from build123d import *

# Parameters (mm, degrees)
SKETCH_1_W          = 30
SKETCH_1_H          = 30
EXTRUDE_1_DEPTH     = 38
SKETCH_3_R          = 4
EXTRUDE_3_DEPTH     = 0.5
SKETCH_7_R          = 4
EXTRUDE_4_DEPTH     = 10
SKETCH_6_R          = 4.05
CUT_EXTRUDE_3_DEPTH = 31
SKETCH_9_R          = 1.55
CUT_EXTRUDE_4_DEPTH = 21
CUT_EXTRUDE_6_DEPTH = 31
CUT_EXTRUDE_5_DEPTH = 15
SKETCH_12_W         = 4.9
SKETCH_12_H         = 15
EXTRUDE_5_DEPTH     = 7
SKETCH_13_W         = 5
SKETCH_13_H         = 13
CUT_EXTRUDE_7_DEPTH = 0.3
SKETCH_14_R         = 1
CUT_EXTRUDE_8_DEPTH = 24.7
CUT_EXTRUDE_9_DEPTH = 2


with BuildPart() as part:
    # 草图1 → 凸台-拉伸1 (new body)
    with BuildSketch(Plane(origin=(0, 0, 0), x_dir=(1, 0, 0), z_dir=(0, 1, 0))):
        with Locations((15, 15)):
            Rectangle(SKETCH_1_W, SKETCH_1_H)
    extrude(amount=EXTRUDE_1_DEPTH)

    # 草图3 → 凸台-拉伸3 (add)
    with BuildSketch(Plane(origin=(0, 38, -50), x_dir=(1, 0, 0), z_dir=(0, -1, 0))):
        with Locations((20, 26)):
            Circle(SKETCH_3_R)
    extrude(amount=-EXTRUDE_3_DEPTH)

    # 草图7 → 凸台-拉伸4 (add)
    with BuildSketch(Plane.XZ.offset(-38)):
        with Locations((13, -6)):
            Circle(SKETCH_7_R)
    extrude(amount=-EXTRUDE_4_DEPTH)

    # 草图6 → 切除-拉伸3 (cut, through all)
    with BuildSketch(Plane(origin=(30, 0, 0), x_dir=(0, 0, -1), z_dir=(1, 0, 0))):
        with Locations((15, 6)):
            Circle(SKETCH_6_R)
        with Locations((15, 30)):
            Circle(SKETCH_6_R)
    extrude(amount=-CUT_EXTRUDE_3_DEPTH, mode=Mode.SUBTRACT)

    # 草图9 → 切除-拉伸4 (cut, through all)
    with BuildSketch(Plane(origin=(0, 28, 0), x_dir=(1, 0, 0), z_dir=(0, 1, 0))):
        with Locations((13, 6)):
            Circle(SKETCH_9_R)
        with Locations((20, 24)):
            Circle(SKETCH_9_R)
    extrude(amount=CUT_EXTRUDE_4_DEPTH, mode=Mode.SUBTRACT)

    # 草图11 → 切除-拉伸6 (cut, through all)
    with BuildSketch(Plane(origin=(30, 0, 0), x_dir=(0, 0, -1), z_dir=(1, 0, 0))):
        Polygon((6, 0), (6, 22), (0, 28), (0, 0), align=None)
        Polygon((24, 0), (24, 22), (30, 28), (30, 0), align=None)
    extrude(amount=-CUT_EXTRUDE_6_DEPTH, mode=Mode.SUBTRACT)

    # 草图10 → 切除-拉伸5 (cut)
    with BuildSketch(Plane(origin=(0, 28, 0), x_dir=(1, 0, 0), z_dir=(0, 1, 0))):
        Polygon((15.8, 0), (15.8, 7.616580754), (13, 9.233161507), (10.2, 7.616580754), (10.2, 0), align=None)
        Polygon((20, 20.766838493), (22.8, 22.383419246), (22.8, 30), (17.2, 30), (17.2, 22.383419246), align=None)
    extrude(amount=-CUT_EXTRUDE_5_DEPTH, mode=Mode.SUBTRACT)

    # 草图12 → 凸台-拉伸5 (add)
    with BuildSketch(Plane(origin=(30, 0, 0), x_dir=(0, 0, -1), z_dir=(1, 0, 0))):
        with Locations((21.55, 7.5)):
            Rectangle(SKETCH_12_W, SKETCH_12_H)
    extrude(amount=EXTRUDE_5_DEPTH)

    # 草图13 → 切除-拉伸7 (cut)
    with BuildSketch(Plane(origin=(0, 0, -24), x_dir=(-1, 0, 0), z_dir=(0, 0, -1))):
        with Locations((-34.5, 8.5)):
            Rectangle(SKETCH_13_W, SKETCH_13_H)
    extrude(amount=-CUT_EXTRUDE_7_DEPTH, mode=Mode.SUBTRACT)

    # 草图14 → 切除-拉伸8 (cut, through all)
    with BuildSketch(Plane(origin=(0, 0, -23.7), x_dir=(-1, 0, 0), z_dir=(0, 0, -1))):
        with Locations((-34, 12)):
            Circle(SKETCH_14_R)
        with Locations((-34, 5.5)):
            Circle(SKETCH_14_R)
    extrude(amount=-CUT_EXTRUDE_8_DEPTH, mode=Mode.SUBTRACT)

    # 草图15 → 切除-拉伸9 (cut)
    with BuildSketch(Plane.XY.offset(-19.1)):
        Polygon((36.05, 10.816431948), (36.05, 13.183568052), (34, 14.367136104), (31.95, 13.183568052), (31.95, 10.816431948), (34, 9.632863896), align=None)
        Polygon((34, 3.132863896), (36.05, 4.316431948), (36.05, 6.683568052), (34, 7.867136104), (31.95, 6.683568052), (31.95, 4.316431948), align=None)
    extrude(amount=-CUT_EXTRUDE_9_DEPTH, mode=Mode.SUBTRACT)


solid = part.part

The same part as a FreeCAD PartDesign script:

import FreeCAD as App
import Part
import Sketcher

V = App.Vector
Q = App.Units.Quantity


def add_polygon(sketch, points):
    """Adds a closed chain of lines whose ends are joined by coincident constraints."""
    first, n = sketch.GeometryCount, len(points)
    for a, b in zip(points, points[1:] + points[:1]):
        sketch.addGeometry(Part.LineSegment(App.Vector(*a, 0), App.Vector(*b, 0)), False)
    for i in range(n):
        sketch.addConstraint(Sketcher.Constraint("Coincident", first + i, 2, first + (i + 1) % n, 1))

doc = App.newDocument("Part")
body = doc.addObject("PartDesign::Body", "Body")

sketch1 = body.newObject("Sketcher::SketchObject", "Sketch")
sketch1.AttachmentSupport = (doc.getObject("XZ_Plane"), [""])
sketch1.MapMode = "FlatFace"
add_polygon(sketch1, [(0, -30), (0, 0), (30, 0), (30, -30)])
sketch1.addConstraint([
    Sketcher.Constraint("Vertical", 0),
    Sketcher.Constraint("Horizontal", 1),
    Sketcher.Constraint("Vertical", 2),
    Sketcher.Constraint("Horizontal", 3),
    Sketcher.Constraint("Coincident", 0, 2, -1, 1),
    Sketcher.Constraint("Equal", 3, 0),
    Sketcher.Constraint("DistanceX", 1, 1, 1, 2, Q("30 mm")),
])
pad1 = body.newObject("PartDesign::Pad", "Pad")
pad1.Profile = sketch1
pad1.Length = 38
pad1.Reversed = True

sketch2 = body.newObject("Sketcher::SketchObject", "Sketch001")
sketch2.AttachmentSupport = (doc.getObject("XZ_Plane"), [""])
sketch2.MapMode = "FlatFace"
sketch2.AttachmentOffset = App.Placement(V(0, 0, -38), App.Rotation())
sketch2.addGeometry(Part.Circle(V(20, -24, 0), V(0, 0, 1), 4), False)
sketch2.addConstraint([
    Sketcher.Constraint("Diameter", 0, Q("8 mm")),
    Sketcher.Constraint("DistanceX", -1, 1, 0, 3, Q("20 mm")),
    Sketcher.Constraint("DistanceY", 0, 3, -1, 1, Q("24 mm")),
])
pad2 = body.newObject("PartDesign::Pad", "Pad001")
pad2.Profile = sketch2
pad2.Length = 0.5
pad2.Reversed = True

sketch3 = body.newObject("Sketcher::SketchObject", "Sketch002")
sketch3.AttachmentSupport = (doc.getObject("XZ_Plane"), [""])
sketch3.MapMode = "FlatFace"
sketch3.AttachmentOffset = App.Placement(V(0, 0, -38), App.Rotation())
sketch3.addGeometry(Part.Circle(V(13, -6, 0), V(0, 0, 1), 4), False)
sketch3.addConstraint([
    Sketcher.Constraint("Diameter", 0, Q("8 mm")),
    Sketcher.Constraint("DistanceX", -1, 1, 0, 3, Q("13 mm")),
    Sketcher.Constraint("DistanceY", 0, 3, -1, 1, Q("6 mm")),
])
pad3 = body.newObject("PartDesign::Pad", "Pad002")
pad3.Profile = sketch3
pad3.Length = 10
pad3.Reversed = True

sketch4 = body.newObject("Sketcher::SketchObject", "Sketch003")
sketch4.AttachmentSupport = (doc.getObject("YZ_Plane"), [""])
sketch4.MapMode = "FlatFace"
sketch4.AttachmentOffset = App.Placement(V(0, 0, 30), App.Rotation())
sketch4.addGeometry([
    Part.Circle(V(6, -15, 0), V(0, 0, 1), 4.05),
    Part.Circle(V(30, -15, 0), V(0, 0, 1), 4.05),
], False)
sketch4.addConstraint([
    Sketcher.Constraint("Equal", 0, 1),
    Sketcher.Constraint("Horizontal", 0, 3, 1, 3),
    Sketcher.Constraint("Diameter", 0, Q("8.1 mm")),
    Sketcher.Constraint("DistanceX", -1, 1, 0, 3, Q("6 mm")),
    Sketcher.Constraint("DistanceY", 0, 3, -1, 1, Q("15 mm")),
    Sketcher.Constraint("DistanceX", -1, 1, 1, 3, Q("30 mm")),
])
pocket1 = body.newObject("PartDesign::Pocket", "Pocket")
pocket1.Profile = sketch4
pocket1.Type = "ThroughAll"

sketch5 = body.newObject("Sketcher::SketchObject", "Sketch004")
sketch5.AttachmentSupport = (doc.getObject("XZ_Plane"), [""])
sketch5.MapMode = "FlatFace"
sketch5.AttachmentOffset = App.Placement(V(0, 0, -28), App.Rotation())
sketch5.addGeometry([
    Part.Circle(V(13, -6, 0), V(0, 0, 1), 1.55),
    Part.Circle(V(20, -24, 0), V(0, 0, 1), 1.55),
], False)
sketch5.addConstraint([
    Sketcher.Constraint("Equal", 0, 1),
    Sketcher.Constraint("Diameter", 0, Q("3.1 mm")),
    Sketcher.Constraint("DistanceX", -1, 1, 0, 3, Q("13 mm")),
    Sketcher.Constraint("DistanceY", 0, 3, -1, 1, Q("6 mm")),
    Sketcher.Constraint("DistanceX", -1, 1, 1, 3, Q("20 mm")),
    Sketcher.Constraint("DistanceY", 1, 3, -1, 1, Q("24 mm")),
])
pocket2 = body.newObject("PartDesign::Pocket", "Pocket001")
pocket2.Profile = sketch5
pocket2.Type = "ThroughAll"

sketch6 = body.newObject("Sketcher::SketchObject", "Sketch005")
sketch6.AttachmentSupport = (doc.getObject("YZ_Plane"), [""])
sketch6.MapMode = "FlatFace"
sketch6.AttachmentOffset = App.Placement(V(0, 0, 30), App.Rotation())
add_polygon(sketch6, [(0, -6), (22, -6), (28, 0), (0, 0)])
add_polygon(sketch6, [(22, -24), (0, -24), (0, -30), (28, -30)])
sketch6.addConstraint([
    Sketcher.Constraint("Horizontal", 0),
    Sketcher.Constraint("Horizontal", 2),
    Sketcher.Constraint("Vertical", 3),
    Sketcher.Constraint("Horizontal", 4),
    Sketcher.Constraint("Vertical", 5),
    Sketcher.Constraint("Horizontal", 6),
    Sketcher.Constraint("Coincident", 2, 2, -1, 1),
    Sketcher.Constraint("PointOnObject", 4, 2, -2),
    Sketcher.Constraint("Perpendicular", 1, 7),
    Sketcher.Constraint("Vertical", 1, 2, 6, 2),
    Sketcher.Constraint("Vertical", 0, 2, 7, 2),
    Sketcher.Constraint("Equal", 3, 5),
    Sketcher.Constraint("DistanceX", 0, 1, 0, 2, Q("22 mm")),
    Sketcher.Constraint("DistanceX", 2, 2, 2, 1, Q("28 mm")),
    Sketcher.Constraint("DistanceY", 4, 2, -1, 1, Q("24 mm")),
])
pocket3 = body.newObject("PartDesign::Pocket", "Pocket002")
pocket3.Profile = sketch6
pocket3.Type = "ThroughAll"

sketch7 = body.newObject("Sketcher::SketchObject", "Sketch006")
sketch7.AttachmentSupport = (doc.getObject("XZ_Plane"), [""])
sketch7.MapMode = "FlatFace"
sketch7.AttachmentOffset = App.Placement(V(0, 0, -28), App.Rotation())
add_polygon(sketch7, [(15.8, 0), (15.8, -7.616581), (13, -9.233162), (10.2, -7.616581), (10.2, 0)])
add_polygon(sketch7, [(20, -20.766838), (22.8, -22.383419), (22.8, -30), (17.2, -30), (17.2, -22.383419)])
sketch7.addConstraint([
    Sketcher.Constraint("Vertical", 0),
    Sketcher.Constraint("Vertical", 3),
    Sketcher.Constraint("Horizontal", 4),
    Sketcher.Constraint("Vertical", 6),
    Sketcher.Constraint("Horizontal", 7),
    Sketcher.Constraint("Vertical", 8),
    Sketcher.Constraint("PointOnObject", 3, 2, -1),
    Sketcher.Constraint("Parallel", 2, 5),
    Sketcher.Constraint("Parallel", 1, 9),
    Sketcher.Constraint("Horizontal", 0, 2, 2, 2),
    Sketcher.Constraint("Horizontal", 5, 2, 8, 2),
    Sketcher.Constraint("Equal", 4, 7),
    Sketcher.Constraint("Equal", 3, 6),
    Sketcher.Constraint("Equal", 1, 2),
    Sketcher.Constraint("Angle", 1, Q("-150 deg")),
    Sketcher.Constraint("DistanceX", 4, 1, 4, 2, Q("5.6 mm")),
    Sketcher.Constraint("DistanceX", -1, 1, 1, 2, Q("13 mm")),
    Sketcher.Constraint("DistanceY", 6, 2, -1, 1, Q("30 mm")),
    Sketcher.Constraint("DistanceX", -1, 1, 9, 2, Q("20 mm")),
    Sketcher.Constraint("DistanceY", 0, 2, 0, 1, Q("7.616581 mm")),
])
pocket4 = body.newObject("PartDesign::Pocket", "Pocket003")
pocket4.Profile = sketch7
pocket4.Length = 15
pocket4.Reversed = True

sketch8 = body.newObject("Sketcher::SketchObject", "Sketch007")
sketch8.AttachmentSupport = (doc.getObject("YZ_Plane"), [""])
sketch8.MapMode = "FlatFace"
sketch8.AttachmentOffset = App.Placement(V(0, 0, 30), App.Rotation())
add_polygon(sketch8, [(15, -19.1), (0, -19.1), (0, -24), (15, -24)])
sketch8.addConstraint([
    Sketcher.Constraint("Horizontal", 0),
    Sketcher.Constraint("Vertical", 1),
    Sketcher.Constraint("Horizontal", 2),
    Sketcher.Constraint("Vertical", 3),
    Sketcher.Constraint("PointOnObject", 0, 2, -2),
    Sketcher.Constraint("DistanceX", 0, 2, 0, 1, Q("15 mm")),
    Sketcher.Constraint("DistanceY", 1, 2, 1, 1, Q("4.9 mm")),
    Sketcher.Constraint("DistanceY", 1, 2, -1, 1, Q("24 mm")),
])
pad4 = body.newObject("PartDesign::Pad", "Pad003")
pad4.Profile = sketch8
pad4.Length = 7

sketch9 = body.newObject("Sketcher::SketchObject", "Sketch008")
sketch9.AttachmentSupport = (doc.getObject("XY_Plane"), [""])
sketch9.MapMode = "FlatFace"
sketch9.AttachmentOffset = App.Placement(V(0, 0, -24), App.Rotation())
add_polygon(sketch9, [(37, 15), (37, 2), (32, 2), (32, 15)])
sketch9.addConstraint([
    Sketcher.Constraint("Vertical", 0),
    Sketcher.Constraint("Horizontal", 1),
    Sketcher.Constraint("Vertical", 2),
    Sketcher.Constraint("Horizontal", 3),
    Sketcher.Constraint("DistanceX", 1, 2, 1, 1, Q("5 mm")),
    Sketcher.Constraint("DistanceY", 0, 2, 0, 1, Q("13 mm")),
    Sketcher.Constraint("DistanceX", -1, 1, 0, 2, Q("37 mm")),
    Sketcher.Constraint("DistanceY", -1, 1, 0, 2, Q("2 mm")),
])
pocket5 = body.newObject("PartDesign::Pocket", "Pocket004")
pocket5.Profile = sketch9
pocket5.Length = 0.3
pocket5.Reversed = True

sketch10 = body.newObject("Sketcher::SketchObject", "Sketch009")
sketch10.AttachmentSupport = (doc.getObject("XY_Plane"), [""])
sketch10.MapMode = "FlatFace"
sketch10.AttachmentOffset = App.Placement(V(0, 0, -23.7), App.Rotation())
sketch10.addGeometry([
    Part.Circle(V(34, 12, 0), V(0, 0, 1), 1),
    Part.Circle(V(34, 5.5, 0), V(0, 0, 1), 1),
], False)
sketch10.addConstraint([
    Sketcher.Constraint("Equal", 0, 1),
    Sketcher.Constraint("Vertical", 0, 3, 1, 3),
    Sketcher.Constraint("Diameter", 0, Q("2 mm")),
    Sketcher.Constraint("DistanceX", -1, 1, 0, 3, Q("34 mm")),
    Sketcher.Constraint("DistanceY", -1, 1, 0, 3, Q("12 mm")),
    Sketcher.Constraint("DistanceY", -1, 1, 1, 3, Q("5.5 mm")),
])
pocket6 = body.newObject("PartDesign::Pocket", "Pocket005")
pocket6.Profile = sketch10
pocket6.Type = "ThroughAll"
pocket6.Reversed = True

sketch11 = body.newObject("Sketcher::SketchObject", "Sketch010")
sketch11.AttachmentSupport = (doc.getObject("XY_Plane"), [""])
sketch11.MapMode = "FlatFace"
sketch11.AttachmentOffset = App.Placement(V(0, 0, -19.1), App.Rotation())
add_polygon(sketch11, [(36.05, 10.816432), (36.05, 13.183568), (34, 14.367136), (31.95, 13.183568), (31.95, 10.816432), (34, 9.632864)])
add_polygon(sketch11, [(34, 3.132864), (36.05, 4.316432), (36.05, 6.683568), (34, 7.867136), (31.95, 6.683568), (31.95, 4.316432)])
sketch11.addConstraint([
    Sketcher.Constraint("Vertical", 0),
    Sketcher.Constraint("Vertical", 3),
    Sketcher.Constraint("Vertical", 7),
    Sketcher.Constraint("Vertical", 10),
    Sketcher.Constraint("Parallel", 1, 4),
    Sketcher.Constraint("Parallel", 2, 5),
    Sketcher.Constraint("Parallel", 5, 6),
    Sketcher.Constraint("Parallel", 4, 8),
    Sketcher.Constraint("Parallel", 6, 9),
    Sketcher.Constraint("Parallel", 8, 11),
    Sketcher.Constraint("Horizontal", 0, 2, 2, 2),
    Sketcher.Constraint("Horizontal", 3, 2, 5, 2),
    Sketcher.Constraint("Horizontal", 7, 2, 9, 2),
    Sketcher.Constraint("Horizontal", 6, 2, 10, 2),
    Sketcher.Constraint("Vertical", 1, 2, 4, 2),
    Sketcher.Constraint("Vertical", 5, 2, 6, 2),
    Sketcher.Constraint("Vertical", 4, 2, 8, 2),
    Sketcher.Constraint("Equal", 3, 7),
    Sketcher.Constraint("Angle", 1, Q("150 deg")),
    Sketcher.Constraint("DistanceX", -1, 1, 1, 2, Q("34 mm")),
    Sketcher.Constraint("DistanceX", 2, 2, 0, 2, Q("4.1 mm")),
    Sketcher.Constraint("DistanceY", 6, 2, 5, 2, Q("6.5 mm")),
    Sketcher.Constraint("DistanceY", 0, 1, 0, 2, Q("2.367136 mm")),
    Sketcher.Constraint("DistanceY", -1, 1, 0, 2, Q("13.183568 mm")),
])
pocket7 = body.newObject("PartDesign::Pocket", "Pocket006")
pocket7.Profile = sketch11
pocket7.Length = 2

doc.recompute()
